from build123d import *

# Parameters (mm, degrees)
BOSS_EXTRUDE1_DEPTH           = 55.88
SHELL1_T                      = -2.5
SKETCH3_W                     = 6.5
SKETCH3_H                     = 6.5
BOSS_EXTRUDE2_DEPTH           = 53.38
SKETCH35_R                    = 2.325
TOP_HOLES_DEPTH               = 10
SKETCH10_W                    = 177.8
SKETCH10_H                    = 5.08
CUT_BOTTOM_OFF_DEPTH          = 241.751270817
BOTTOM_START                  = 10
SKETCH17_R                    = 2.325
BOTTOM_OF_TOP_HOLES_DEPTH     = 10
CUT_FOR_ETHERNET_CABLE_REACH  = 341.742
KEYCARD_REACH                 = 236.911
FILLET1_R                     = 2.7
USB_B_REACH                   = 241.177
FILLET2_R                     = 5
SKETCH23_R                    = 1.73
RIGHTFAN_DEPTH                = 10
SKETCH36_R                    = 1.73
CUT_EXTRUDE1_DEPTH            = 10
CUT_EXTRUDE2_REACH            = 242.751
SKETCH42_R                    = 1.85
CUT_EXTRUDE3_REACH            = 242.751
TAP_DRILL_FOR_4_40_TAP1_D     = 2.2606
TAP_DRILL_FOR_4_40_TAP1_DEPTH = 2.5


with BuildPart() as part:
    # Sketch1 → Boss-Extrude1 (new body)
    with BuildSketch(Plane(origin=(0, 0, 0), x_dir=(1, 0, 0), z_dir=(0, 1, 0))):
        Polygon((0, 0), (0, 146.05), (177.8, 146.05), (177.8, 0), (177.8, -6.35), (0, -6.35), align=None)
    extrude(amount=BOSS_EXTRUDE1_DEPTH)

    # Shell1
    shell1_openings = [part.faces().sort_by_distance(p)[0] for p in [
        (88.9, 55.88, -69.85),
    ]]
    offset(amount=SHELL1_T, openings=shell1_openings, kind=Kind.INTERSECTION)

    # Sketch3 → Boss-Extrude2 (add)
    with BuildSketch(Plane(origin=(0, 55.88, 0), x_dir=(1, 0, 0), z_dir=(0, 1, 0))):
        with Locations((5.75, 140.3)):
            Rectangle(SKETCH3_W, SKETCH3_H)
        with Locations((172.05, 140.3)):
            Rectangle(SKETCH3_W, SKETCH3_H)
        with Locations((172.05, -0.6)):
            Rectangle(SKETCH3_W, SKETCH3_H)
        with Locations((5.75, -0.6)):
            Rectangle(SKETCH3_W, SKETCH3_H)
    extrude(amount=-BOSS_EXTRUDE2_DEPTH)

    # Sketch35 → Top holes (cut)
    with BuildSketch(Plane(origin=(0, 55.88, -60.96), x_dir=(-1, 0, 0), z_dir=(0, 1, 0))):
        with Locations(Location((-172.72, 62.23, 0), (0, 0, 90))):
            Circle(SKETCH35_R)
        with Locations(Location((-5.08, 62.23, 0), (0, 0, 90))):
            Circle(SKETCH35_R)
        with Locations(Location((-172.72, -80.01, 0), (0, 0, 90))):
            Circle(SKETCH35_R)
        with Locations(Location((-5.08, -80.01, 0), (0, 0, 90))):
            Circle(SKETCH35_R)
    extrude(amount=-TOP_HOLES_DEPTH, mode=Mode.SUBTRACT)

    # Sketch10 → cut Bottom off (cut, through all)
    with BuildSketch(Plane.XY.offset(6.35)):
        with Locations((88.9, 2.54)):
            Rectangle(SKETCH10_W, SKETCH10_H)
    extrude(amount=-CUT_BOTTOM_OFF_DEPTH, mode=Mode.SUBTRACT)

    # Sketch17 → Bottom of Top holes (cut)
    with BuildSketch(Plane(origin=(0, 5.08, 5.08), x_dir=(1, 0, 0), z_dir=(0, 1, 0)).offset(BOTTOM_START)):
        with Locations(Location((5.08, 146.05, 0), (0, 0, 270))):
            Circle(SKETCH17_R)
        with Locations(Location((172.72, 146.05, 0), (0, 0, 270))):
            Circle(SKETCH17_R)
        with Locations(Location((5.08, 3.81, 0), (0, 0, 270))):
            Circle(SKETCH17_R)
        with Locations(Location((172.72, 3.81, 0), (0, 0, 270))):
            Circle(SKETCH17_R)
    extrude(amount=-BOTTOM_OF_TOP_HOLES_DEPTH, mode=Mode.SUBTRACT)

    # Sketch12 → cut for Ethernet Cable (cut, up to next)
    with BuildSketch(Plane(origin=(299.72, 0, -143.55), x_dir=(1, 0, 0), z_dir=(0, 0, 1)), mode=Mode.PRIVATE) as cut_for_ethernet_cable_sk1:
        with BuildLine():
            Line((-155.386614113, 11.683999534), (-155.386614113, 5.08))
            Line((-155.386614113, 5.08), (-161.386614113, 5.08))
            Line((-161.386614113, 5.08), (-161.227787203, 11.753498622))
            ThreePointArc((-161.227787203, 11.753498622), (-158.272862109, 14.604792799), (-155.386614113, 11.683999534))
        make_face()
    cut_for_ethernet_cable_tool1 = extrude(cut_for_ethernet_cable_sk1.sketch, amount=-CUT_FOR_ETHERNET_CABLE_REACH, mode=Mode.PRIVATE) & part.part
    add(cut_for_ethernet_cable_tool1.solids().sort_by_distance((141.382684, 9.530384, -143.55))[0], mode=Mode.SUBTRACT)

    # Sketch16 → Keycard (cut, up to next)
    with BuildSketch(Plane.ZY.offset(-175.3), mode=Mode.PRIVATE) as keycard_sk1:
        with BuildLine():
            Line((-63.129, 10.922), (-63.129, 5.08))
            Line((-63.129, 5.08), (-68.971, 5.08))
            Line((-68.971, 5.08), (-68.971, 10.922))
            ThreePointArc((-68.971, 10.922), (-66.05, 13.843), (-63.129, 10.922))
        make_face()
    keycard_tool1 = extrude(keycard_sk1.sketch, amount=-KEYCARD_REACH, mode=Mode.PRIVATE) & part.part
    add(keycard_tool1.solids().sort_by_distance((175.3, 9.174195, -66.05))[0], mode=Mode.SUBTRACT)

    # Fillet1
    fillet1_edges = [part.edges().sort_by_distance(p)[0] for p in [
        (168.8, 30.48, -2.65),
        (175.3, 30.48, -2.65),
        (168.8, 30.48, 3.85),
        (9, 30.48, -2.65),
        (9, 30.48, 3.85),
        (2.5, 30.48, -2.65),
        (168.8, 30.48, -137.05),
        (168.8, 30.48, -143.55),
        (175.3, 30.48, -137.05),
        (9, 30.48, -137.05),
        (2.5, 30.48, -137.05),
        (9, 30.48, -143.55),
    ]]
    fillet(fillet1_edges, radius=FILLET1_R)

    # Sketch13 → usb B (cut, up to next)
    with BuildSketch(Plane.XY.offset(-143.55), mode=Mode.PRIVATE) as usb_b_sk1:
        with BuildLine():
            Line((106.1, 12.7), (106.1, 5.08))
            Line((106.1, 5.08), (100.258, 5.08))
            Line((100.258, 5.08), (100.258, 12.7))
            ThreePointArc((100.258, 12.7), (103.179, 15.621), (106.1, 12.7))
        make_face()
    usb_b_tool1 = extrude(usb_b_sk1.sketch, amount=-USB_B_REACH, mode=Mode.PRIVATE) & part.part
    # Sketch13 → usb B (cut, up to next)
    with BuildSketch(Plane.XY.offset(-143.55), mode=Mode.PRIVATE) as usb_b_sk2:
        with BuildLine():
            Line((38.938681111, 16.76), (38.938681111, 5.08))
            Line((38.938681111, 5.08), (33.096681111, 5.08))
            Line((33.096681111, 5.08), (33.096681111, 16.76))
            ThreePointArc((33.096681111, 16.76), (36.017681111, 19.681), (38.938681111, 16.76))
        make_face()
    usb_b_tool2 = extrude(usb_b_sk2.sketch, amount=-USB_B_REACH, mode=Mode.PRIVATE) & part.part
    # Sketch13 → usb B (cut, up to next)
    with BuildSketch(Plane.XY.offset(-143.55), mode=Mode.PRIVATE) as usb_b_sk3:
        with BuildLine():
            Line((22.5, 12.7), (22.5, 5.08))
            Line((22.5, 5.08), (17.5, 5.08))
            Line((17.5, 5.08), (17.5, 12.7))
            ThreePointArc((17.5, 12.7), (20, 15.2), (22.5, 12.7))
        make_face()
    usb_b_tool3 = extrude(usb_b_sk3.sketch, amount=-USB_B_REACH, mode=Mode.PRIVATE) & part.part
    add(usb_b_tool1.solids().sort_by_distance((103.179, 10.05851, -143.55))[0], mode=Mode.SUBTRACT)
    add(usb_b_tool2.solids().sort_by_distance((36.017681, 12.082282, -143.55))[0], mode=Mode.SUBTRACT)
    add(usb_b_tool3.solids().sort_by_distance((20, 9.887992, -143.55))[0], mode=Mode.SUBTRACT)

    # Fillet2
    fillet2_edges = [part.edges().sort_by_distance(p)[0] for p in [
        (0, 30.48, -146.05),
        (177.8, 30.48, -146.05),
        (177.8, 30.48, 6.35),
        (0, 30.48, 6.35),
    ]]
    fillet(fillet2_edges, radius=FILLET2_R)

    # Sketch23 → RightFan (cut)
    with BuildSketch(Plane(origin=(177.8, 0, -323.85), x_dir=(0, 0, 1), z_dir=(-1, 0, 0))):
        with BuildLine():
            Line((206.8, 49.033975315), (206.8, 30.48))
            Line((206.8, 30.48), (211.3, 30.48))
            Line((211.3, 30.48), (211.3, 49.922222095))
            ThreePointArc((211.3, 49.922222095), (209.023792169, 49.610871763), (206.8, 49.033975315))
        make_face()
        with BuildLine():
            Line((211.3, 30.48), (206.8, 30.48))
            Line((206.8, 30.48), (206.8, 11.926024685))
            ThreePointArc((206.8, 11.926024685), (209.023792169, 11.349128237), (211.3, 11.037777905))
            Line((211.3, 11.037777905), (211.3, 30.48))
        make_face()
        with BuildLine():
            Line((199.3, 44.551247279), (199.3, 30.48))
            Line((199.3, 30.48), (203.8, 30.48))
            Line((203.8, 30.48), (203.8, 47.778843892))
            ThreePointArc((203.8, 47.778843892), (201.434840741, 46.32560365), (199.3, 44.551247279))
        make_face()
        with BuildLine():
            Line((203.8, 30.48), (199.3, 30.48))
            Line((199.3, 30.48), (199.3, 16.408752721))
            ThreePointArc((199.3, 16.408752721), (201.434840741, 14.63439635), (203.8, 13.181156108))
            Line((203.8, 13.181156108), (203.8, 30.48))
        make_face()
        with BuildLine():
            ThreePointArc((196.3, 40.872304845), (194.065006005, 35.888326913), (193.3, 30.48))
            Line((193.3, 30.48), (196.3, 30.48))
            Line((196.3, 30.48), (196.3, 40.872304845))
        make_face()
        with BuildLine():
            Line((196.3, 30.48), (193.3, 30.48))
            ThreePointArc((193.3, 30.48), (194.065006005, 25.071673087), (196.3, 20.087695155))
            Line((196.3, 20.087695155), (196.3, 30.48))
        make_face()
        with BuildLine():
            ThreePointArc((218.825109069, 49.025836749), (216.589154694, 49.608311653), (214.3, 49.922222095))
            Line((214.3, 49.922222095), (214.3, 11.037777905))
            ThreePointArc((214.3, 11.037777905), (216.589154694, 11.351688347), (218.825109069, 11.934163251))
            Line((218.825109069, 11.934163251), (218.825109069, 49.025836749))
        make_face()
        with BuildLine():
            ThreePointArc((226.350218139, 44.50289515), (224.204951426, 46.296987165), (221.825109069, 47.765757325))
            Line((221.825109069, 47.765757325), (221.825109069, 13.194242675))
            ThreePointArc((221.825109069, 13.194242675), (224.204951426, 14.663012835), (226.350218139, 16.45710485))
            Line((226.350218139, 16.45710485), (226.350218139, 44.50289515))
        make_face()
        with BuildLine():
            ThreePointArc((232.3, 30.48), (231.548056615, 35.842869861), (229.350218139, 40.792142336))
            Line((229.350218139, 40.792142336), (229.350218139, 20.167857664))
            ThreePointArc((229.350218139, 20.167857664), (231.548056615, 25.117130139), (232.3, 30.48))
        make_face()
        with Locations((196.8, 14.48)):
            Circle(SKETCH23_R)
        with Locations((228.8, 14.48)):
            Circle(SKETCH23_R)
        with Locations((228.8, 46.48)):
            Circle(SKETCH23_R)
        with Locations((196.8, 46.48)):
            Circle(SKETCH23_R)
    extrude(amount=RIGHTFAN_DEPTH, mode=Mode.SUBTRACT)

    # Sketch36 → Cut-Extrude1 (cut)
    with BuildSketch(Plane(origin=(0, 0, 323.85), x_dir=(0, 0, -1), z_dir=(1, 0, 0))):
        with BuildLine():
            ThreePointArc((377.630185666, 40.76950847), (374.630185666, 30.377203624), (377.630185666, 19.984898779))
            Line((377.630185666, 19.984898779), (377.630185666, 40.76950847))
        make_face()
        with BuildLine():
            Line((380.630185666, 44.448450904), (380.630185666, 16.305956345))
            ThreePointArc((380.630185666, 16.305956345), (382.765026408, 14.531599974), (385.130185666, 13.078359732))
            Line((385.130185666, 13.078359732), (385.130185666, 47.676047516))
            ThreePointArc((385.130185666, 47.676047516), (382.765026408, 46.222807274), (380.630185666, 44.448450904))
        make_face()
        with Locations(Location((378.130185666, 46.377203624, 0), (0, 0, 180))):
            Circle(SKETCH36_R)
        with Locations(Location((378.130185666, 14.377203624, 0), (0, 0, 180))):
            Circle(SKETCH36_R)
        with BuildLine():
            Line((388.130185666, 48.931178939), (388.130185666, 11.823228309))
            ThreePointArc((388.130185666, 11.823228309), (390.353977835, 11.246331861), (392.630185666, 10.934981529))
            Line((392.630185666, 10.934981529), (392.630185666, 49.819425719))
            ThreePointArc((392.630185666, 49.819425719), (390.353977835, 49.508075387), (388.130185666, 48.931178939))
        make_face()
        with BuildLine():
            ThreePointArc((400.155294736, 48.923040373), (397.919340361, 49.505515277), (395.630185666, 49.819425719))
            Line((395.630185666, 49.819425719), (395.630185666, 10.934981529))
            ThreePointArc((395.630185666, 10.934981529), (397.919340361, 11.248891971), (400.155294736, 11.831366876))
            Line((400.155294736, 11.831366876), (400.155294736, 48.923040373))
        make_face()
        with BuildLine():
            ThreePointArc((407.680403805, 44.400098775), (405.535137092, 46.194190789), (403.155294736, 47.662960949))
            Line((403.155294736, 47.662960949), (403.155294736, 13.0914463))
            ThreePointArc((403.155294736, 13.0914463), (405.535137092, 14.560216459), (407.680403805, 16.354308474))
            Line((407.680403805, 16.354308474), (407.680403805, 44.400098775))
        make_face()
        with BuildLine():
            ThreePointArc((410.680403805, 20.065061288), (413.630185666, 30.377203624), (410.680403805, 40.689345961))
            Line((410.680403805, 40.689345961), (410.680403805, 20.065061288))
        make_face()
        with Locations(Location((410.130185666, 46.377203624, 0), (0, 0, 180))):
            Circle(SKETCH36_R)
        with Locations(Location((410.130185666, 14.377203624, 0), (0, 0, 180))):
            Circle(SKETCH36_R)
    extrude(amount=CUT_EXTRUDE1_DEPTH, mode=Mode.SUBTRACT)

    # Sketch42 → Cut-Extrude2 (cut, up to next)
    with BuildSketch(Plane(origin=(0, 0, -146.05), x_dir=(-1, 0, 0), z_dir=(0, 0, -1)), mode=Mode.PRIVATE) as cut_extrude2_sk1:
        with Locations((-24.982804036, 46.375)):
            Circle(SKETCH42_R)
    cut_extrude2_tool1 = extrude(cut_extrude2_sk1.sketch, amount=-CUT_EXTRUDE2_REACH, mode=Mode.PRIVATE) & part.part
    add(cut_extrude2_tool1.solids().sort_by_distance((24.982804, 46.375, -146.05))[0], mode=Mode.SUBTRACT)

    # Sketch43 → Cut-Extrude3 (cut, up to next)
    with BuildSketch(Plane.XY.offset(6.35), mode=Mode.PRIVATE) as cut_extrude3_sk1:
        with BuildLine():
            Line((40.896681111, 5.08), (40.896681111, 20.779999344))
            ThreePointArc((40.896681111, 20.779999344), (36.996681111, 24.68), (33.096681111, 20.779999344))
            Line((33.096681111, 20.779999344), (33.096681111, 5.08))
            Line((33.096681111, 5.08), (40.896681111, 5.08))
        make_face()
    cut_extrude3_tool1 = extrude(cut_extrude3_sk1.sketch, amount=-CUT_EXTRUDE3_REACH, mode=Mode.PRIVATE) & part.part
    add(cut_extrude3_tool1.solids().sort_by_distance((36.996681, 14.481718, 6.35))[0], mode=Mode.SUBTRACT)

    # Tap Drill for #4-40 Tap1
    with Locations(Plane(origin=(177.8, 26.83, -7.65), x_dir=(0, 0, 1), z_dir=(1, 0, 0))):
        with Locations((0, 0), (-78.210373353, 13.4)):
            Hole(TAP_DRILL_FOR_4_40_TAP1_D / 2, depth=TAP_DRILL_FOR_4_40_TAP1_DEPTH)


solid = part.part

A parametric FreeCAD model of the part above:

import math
import FreeCAD as App
import Part
import Sketcher
from FreeCAD import Vector


def edges_at(feature, points):
    """Names of the edges that pass closest to the given points."""
    edges = feature.Shape.Edges
    near = lambda p: min(range(len(edges)), key=lambda i: edges[i].distToShape(Part.Vertex(*p))[0])
    return sorted({f"Edge{near(p) + 1}" for p in points})


def faces_at(feature, points):
    """Names of the faces that lie closest to the given points."""
    faces = feature.Shape.Faces
    near = lambda p: min(range(len(faces)), key=lambda i: faces[i].distToShape(Part.Vertex(*p))[0])
    return sorted({f"Face{near(p) + 1}" for p in points})

doc = App.newDocument("Part")
body = doc.addObject("PartDesign::Body", "Body")

sketch1 = doc.addObject("Sketcher::SketchObject", "Sketch")
body.addObject(sketch1)
sketch1.AttachmentSupport = (doc.XZ_Plane, [""])
sketch1.MapMode = "FlatFace"
sketch1.addGeometry(Part.LineSegment(Vector(0, -146, 0), Vector(0, 6, 0)), False)
sketch1.addGeometry(Part.LineSegment(Vector(0, 6, 0), Vector(178, 6, 0)), False)
sketch1.addGeometry(Part.LineSegment(Vector(178, 6, 0), Vector(178, -146, 0)), False)
sketch1.addGeometry(Part.LineSegment(Vector(178, -146, 0), Vector(0, -146, 0)), False)
sketch1.addConstraint(Sketcher.Constraint("Coincident", 0, 2, 1, 1))
sketch1.addConstraint(Sketcher.Constraint("Coincident", 1, 2, 2, 1))
sketch1.addConstraint(Sketcher.Constraint("Coincident", 2, 2, 3, 1))
sketch1.addConstraint(Sketcher.Constraint("Coincident", 3, 2, 0, 1))
sketch1.addConstraint(Sketcher.Constraint("Vertical", 0))
sketch1.addConstraint(Sketcher.Constraint("Horizontal", 1))
sketch1.addConstraint(Sketcher.Constraint("Vertical", 2))
sketch1.addConstraint(Sketcher.Constraint("Horizontal", 3))
sketch1.addConstraint(Sketcher.Constraint("PointOnObject", 0, 2, -2))
sketch1.addConstraint(Sketcher.Constraint("DistanceX", 1, 1, 1, 2, 177.8))
sketch1.addConstraint(Sketcher.Constraint("DistanceY", 0, 1, 0, 2, 152.4))
sketch1.addConstraint(Sketcher.Constraint("DistanceY", -1, 1, 0, 2, 6.35))
pad1 = doc.addObject("PartDesign::Pad", "Pad")
body.addObject(pad1)
pad1.Profile = sketch1
pad1.Length = 55.88
pad1.Reversed = True
doc.recompute()

thickness = doc.addObject("PartDesign::Thickness", "Thickness")
body.addObject(thickness)
thickness.Base = (pad1, faces_at(pad1, [(88.9, 55.88, -69.85)]))
thickness.Value = 2.5
thickness.Reversed = True
thickness.Join = "Intersection"

sketch2 = doc.addObject("Sketcher::SketchObject", "Sketch001")
body.addObject(sketch2)
sketch2.AttachmentSupport = (doc.XZ_Plane, [""])
sketch2.MapMode = "FlatFace"
sketch2.AttachmentOffset = App.Placement(Vector(0, 0, -55.88), App.Rotation())
sketch2.addGeometry(Part.LineSegment(Vector(2, -144, 0), Vector(2, -137, 0)), False)
sketch2.addGeometry(Part.LineSegment(Vector(2, -137, 0), Vector(9, -137, 0)), False)
sketch2.addGeometry(Part.LineSegment(Vector(9, -137, 0), Vector(9, -144, 0)), False)
sketch2.addGeometry(Part.LineSegment(Vector(9, -144, 0), Vector(2, -144, 0)), False)
sketch2.addGeometry(Part.LineSegment(Vector(169, -144, 0), Vector(169, -137, 0)), False)
sketch2.addGeometry(Part.LineSegment(Vector(169, -137, 0), Vector(175, -137, 0)), False)
sketch2.addGeometry(Part.LineSegment(Vector(175, -137, 0), Vector(175, -144, 0)), False)
sketch2.addGeometry(Part.LineSegment(Vector(175, -144, 0), Vector(169, -144, 0)), False)
sketch2.addGeometry(Part.LineSegment(Vector(169, -3, 0), Vector(169, 4, 0)), False)
sketch2.addGeometry(Part.LineSegment(Vector(169, 4, 0), Vector(175, 4, 0)), False)
sketch2.addGeometry(Part.LineSegment(Vector(175, 4, 0), Vector(175, -3, 0)), False)
sketch2.addGeometry(Part.LineSegment(Vector(175, -3, 0), Vector(169, -3, 0)), False)
sketch2.addGeometry(Part.LineSegment(Vector(2, -3, 0), Vector(2, 4, 0)), False)
sketch2.addGeometry(Part.LineSegment(Vector(2, 4, 0), Vector(9, 4, 0)), False)
sketch2.addGeometry(Part.LineSegment(Vector(9, 4, 0), Vector(9, -3, 0)), False)
sketch2.addGeometry(Part.LineSegment(Vector(9, -3, 0), Vector(2, -3, 0)), False)
sketch2.addConstraint(Sketcher.Constraint("Coincident", 0, 2, 1, 1))
sketch2.addConstraint(Sketcher.Constraint("Coincident", 1, 2, 2, 1))
sketch2.addConstraint(Sketcher.Constraint("Coincident", 2, 2, 3, 1))
sketch2.addConstraint(Sketcher.Constraint("Coincident", 3, 2, 0, 1))
sketch2.addConstraint(Sketcher.Constraint("Coincident", 4, 2, 5, 1))
sketch2.addConstraint(Sketcher.Constraint("Coincident", 5, 2, 6, 1))
sketch2.addConstraint(Sketcher.Constraint("Coincident", 6, 2, 7, 1))
sketch2.addConstraint(Sketcher.Constraint("Coincident", 7, 2, 4, 1))
sketch2.addConstraint(Sketcher.Constraint("Coincident", 8, 2, 9, 1))
sketch2.addConstraint(Sketcher.Constraint("Coincident", 9, 2, 10, 1))
sketch2.addConstraint(Sketcher.Constraint("Coincident", 10, 2, 11, 1))
sketch2.addConstraint(Sketcher.Constraint("Coincident", 11, 2, 8, 1))
sketch2.addConstraint(Sketcher.Constraint("Coincident", 12, 2, 13, 1))
sketch2.addConstraint(Sketcher.Constraint("Coincident", 13, 2, 14, 1))
sketch2.addConstraint(Sketcher.Constraint("Coincident", 14, 2, 15, 1))
sketch2.addConstraint(Sketcher.Constraint("Coincident", 15, 2, 12, 1))
sketch2.addConstraint(Sketcher.Constraint("Vertical", 0))
sketch2.addConstraint(Sketcher.Constraint("Horizontal", 1))
sketch2.addConstraint(Sketcher.Constraint("Vertical", 2))
sketch2.addConstraint(Sketcher.Constraint("Horizontal", 3))
sketch2.addConstraint(Sketcher.Constraint("Vertical", 4))
sketch2.addConstraint(Sketcher.Constraint("Horizontal", 5))
sketch2.addConstraint(Sketcher.Constraint("Vertical", 6))
sketch2.addConstraint(Sketcher.Constraint("Horizontal", 7))
sketch2.addConstraint(Sketcher.Constraint("Vertical", 8))
sketch2.addConstraint(Sketcher.Constraint("Horizontal", 9))
sketch2.addConstraint(Sketcher.Constraint("Vertical", 10))
sketch2.addConstraint(Sketcher.Constraint("Horizontal", 11))
sketch2.addConstraint(Sketcher.Constraint("Vertical", 12))
sketch2.addConstraint(Sketcher.Constraint("Horizontal", 13))
sketch2.addConstraint(Sketcher.Constraint("Vertical", 14))
sketch2.addConstraint(Sketcher.Constraint("Horizontal", 15))
sketch2.addConstraint(Sketcher.Constraint("Horizontal", 1, 2, 4, 2))
sketch2.addConstraint(Sketcher.Constraint("Horizontal", 3, 2, 6, 2))
sketch2.addConstraint(Sketcher.Constraint("Horizontal", 9, 2, 12, 2))
sketch2.addConstraint(Sketcher.Constraint("Horizontal", 11, 2, 14, 2))
sketch2.addConstraint(Sketcher.Constraint("Vertical", 7, 2, 8, 2))
sketch2.addConstraint(Sketcher.Constraint("Vertical", 6, 2, 9, 2))
sketch2.addConstraint(Sketcher.Constraint("Vertical", 3, 2, 12, 2))
sketch2.addConstraint(Sketcher.Constraint("Vertical", 2, 2, 13, 2))
sketch2.addConstraint(Sketcher.Constraint("Equal", 3, 5))
sketch2.addConstraint(Sketcher.Constraint("Equal", 15, 0))
sketch2.addConstraint(Sketcher.Constraint("Equal", 6, 8))
sketch2.addConstraint(Sketcher.Constraint("DistanceX", 1, 1, 1, 2, 6.5))
sketch2.addConstraint(Sketcher.Constraint("DistanceX", -1, 1, 1, 2, 9.0))
sketch2.addConstraint(Sketcher.Constraint("DistanceX", -1, 1, 4, 2, 168.8))
sketch2.addConstraint(Sketcher.Constraint("DistanceY", 4, 2, 8, 2, 140.9))
sketch2.addConstraint(Sketcher.Constraint("DistanceY", 0, 2, -1, 1, 137.05))
pad2 = doc.addObject("PartDesign::Pad", "Pad001")
body.addObject(pad2)
pad2.Profile = sketch2
pad2.Length = 53.38

sketch3 = doc.addObject("Sketcher::SketchObject", "Sketch002")
body.addObject(sketch3)
sketch3.AttachmentSupport = (doc.XZ_Plane, [""])
sketch3.MapMode = "FlatFace"
sketch3.AttachmentOffset = App.Placement(Vector(0, 0, -55.88), App.Rotation())
sketch3.addGeometry(Part.Circle(Vector(172.7, 1.3, 0), Vector(0, 0, 1), 2.3), False)
sketch3.addGeometry(Part.Circle(Vector(5.1, 1.3, 0), Vector(0, 0, 1), 2.3), False)
sketch3.addGeometry(Part.Circle(Vector(172.7, -141, 0), Vector(0, 0, 1), 2.3), False)
sketch3.addGeometry(Part.Circle(Vector(5.1, -141, 0), Vector(0, 0, 1), 2.3), False)
sketch3.addConstraint(Sketcher.Constraint("Equal", 0, 1))
sketch3.addConstraint(Sketcher.Constraint("Equal", 1, 2))
sketch3.addConstraint(Sketcher.Constraint("Equal", 2, 3))
sketch3.addConstraint(Sketcher.Constraint("Horizontal", 0, 3, 1, 3))
sketch3.addConstraint(Sketcher.Constraint("Horizontal", 2, 3, 3, 3))
sketch3.addConstraint(Sketcher.Constraint("Vertical", 0, 3, 2, 3))
sketch3.addConstraint(Sketcher.Constraint("Vertical", 1, 3, 3, 3))
sketch3.addConstraint(Sketcher.Constraint("Diameter", 0, 4.65))
sketch3.addConstraint(Sketcher.Constraint("DistanceX", -1, 1, 0, 3, 172.72))
sketch3.addConstraint(Sketcher.Constraint("DistanceY", -1, 1, 0, 3, 1.27))
sketch3.addConstraint(Sketcher.Constraint("DistanceX", -1, 1, 1, 3, 5.08))
sketch3.addConstraint(Sketcher.Constraint("DistanceY", 2, 3, -1, 1, 140.97))
pocket1 = doc.addObject("PartDesign::Pocket", "Pocket")
body.addObject(pocket1)
pocket1.Profile = sketch3
pocket1.Length = 10
pocket1.Reversed = True

sketch4 = doc.addObject("Sketcher::SketchObject", "Sketch003")
body.addObject(sketch4)
sketch4.AttachmentSupport = (doc.XY_Plane, [""])
sketch4.MapMode = "FlatFace"
sketch4.AttachmentOffset = App.Placement(Vector(0, 0, 6.35), App.Rotation())
sketch4.addGeometry(Part.LineSegment(Vector(0, 5, 0), Vector(0, 0, 0)), False)
sketch4.addGeometry(Part.LineSegment(Vector(0, 0, 0), Vector(178, 0, 0)), False)
sketch4.addGeometry(Part.LineSegment(Vector(178, 0, 0), Vector(178, 5, 0)), False)
sketch4.addGeometry(Part.LineSegment(Vector(178, 5, 0), Vector(0, 5, 0)), False)
sketch4.addConstraint(Sketcher.Constraint("Coincident", 0, 2, 1, 1))
sketch4.addConstraint(Sketcher.Constraint("Coincident", 1, 2, 2, 1))
sketch4.addConstraint(Sketcher.Constraint("Coincident", 2, 2, 3, 1))
sketch4.addConstraint(Sketcher.Constraint("Coincident", 3, 2, 0, 1))
sketch4.addConstraint(Sketcher.Constraint("Vertical", 0))
sketch4.addConstraint(Sketcher.Constraint("Horizontal", 1))
sketch4.addConstraint(Sketcher.Constraint("Vertical", 2))
sketch4.addConstraint(Sketcher.Constraint("Horizontal", 3))
sketch4.addConstraint(Sketcher.Constraint("Coincident", 0, 2, -1, 1))
sketch4.addConstraint(Sketcher.Constraint("DistanceX", 1, 1, 1, 2, 177.8))
sketch4.addConstraint(Sketcher.Constraint("DistanceY", 0, 2, 0, 1, 5.08))
pocket2 = doc.addObject("PartDesign::Pocket", "Pocket001")
body.addObject(pocket2)
pocket2.Profile = sketch4
pocket2.Type = "ThroughAll"

sketch5 = doc.addObject("Sketcher::SketchObject", "Sketch004")
body.addObject(sketch5)
sketch5.AttachmentSupport = (doc.XZ_Plane, [""])
sketch5.MapMode = "FlatFace"
sketch5.AttachmentOffset = App.Placement(Vector(0, 0, -15.08), App.Rotation())
sketch5.addGeometry(Part.Circle(Vector(5.1, -141, 0), Vector(0, 0, 1), 2.3), False)
sketch5.addGeometry(Part.Circle(Vector(172.7, -141, 0), Vector(0, 0, 1), 2.3), False)
sketch5.addGeometry(Part.Circle(Vector(5.1, 1.3, 0), Vector(0, 0, 1), 2.3), False)
sketch5.addGeometry(Part.Circle(Vector(172.7, 1.3, 0), Vector(0, 0, 1), 2.3), False)
sketch5.addConstraint(Sketcher.Constraint("Equal", 0, 1))
sketch5.addConstraint(Sketcher.Constraint("Equal", 1, 2))
sketch5.addConstraint(Sketcher.Constraint("Equal", 2, 3))
sketch5.addConstraint(Sketcher.Constraint("Horizontal", 0, 3, 1, 3))
sketch5.addConstraint(Sketcher.Constraint("Horizontal", 2, 3, 3, 3))
sketch5.addConstraint(Sketcher.Constraint("Vertical", 0, 3, 2, 3))
sketch5.addConstraint(Sketcher.Constraint("Vertical", 1, 3, 3, 3))
sketch5.addConstraint(Sketcher.Constraint("Diameter", 0, 4.65))
sketch5.addConstraint(Sketcher.Constraint("DistanceX", -1, 1, 0, 3, 5.08))
sketch5.addConstraint(Sketcher.Constraint("DistanceY", 0, 3, -1, 1, 140.97))
sketch5.addConstraint(Sketcher.Constraint("DistanceX", -1, 1, 1, 3, 172.72))
sketch5.addConstraint(Sketcher.Constraint("DistanceY", -1, 1, 2, 3, 1.27))
pocket3 = doc.addObject("PartDesign::Pocket", "Pocket002")
body.addObject(pocket3)
pocket3.Profile = sketch5
pocket3.Length = 10
pocket3.Reversed = True

sketch6 = doc.addObject("Sketcher::SketchObject", "Sketch005")
body.addObject(sketch6)
sketch6.AttachmentSupport = (doc.XY_Plane, [""])
sketch6.MapMode = "FlatFace"
sketch6.AttachmentOffset = App.Placement(Vector(0, 0, -143.55), App.Rotation())
sketch6.addGeometry(Part.LineSegment(Vector(144.3, 5.1, 0), Vector(144.3, 11.7, 0)), False)
sketch6.addGeometry(Part.ArcOfCircle(Part.Circle(Vector(141.4, 11.7, 0), Vector(0, 0, 1), 2.9), math.radians(0), math.radians(179)), False)
sketch6.addGeometry(Part.LineSegment(Vector(138.5, 11.8, 0), Vector(138.3, 5.1, 0)), False)
sketch6.addGeometry(Part.LineSegment(Vector(138.3, 5.1, 0), Vector(144.3, 5.1, 0)), False)
sketch6.addConstraint(Sketcher.Constraint("Tangent", 0, 2, 1, 1))
sketch6.addConstraint(Sketcher.Constraint("Tangent", 1, 2, 2, 1))
sketch6.addConstraint(Sketcher.Constraint("Coincident", 2, 2, 3, 1))
sketch6.addConstraint(Sketcher.Constraint("Coincident", 3, 2, 0, 1))
sketch6.addConstraint(Sketcher.Constraint("Vertical", 0))
sketch6.addConstraint(Sketcher.Constraint("Horizontal", 3))
sketch6.addConstraint(Sketcher.Constraint("DistanceX", 3, 1, 3, 2, 6.0))
sketch6.addConstraint(Sketcher.Constraint("Radius", 1, 2.921))
sketch6.addConstraint(Sketcher.Constraint("DistanceY", 0, 1, 0, 2, 6.604))
sketch6.addConstraint(Sketcher.Constraint("DistanceY", -1, 1, 2, 2, 5.08))
sketch6.addConstraint(Sketcher.Constraint("DistanceX", -1, 1, 1, 3, 141.412386))
pocket4 = doc.addObject("PartDesign::Pocket", "Pocket003")
body.addObject(pocket4)
pocket4.Profile = sketch6
pocket4.Type = "UpToFirst"

sketch7 = doc.addObject("Sketcher::SketchObject", "Sketch006")
body.addObject(sketch7)
sketch7.AttachmentSupport = (doc.YZ_Plane, [""])
sketch7.MapMode = "FlatFace"
sketch7.AttachmentOffset = App.Placement(Vector(0, 0, 175.3), App.Rotation())
sketch7.addGeometry(Part.LineSegment(Vector(5.1, -63.1, 0), Vector(10.9, -63.1, 0)), False)
sketch7.addGeometry(Part.ArcOfCircle(Part.Circle(Vector(10.9, -66, 0), Vector(0, 0, 1), 2.9), math.radians(-90), math.radians(90)), False)
sketch7.addGeometry(Part.LineSegment(Vector(10.9, -69, 0), Vector(5.1, -69, 0)), False)
sketch7.addGeometry(Part.LineSegment(Vector(5.1, -69, 0), Vector(5.1, -63.1, 0)), False)
sketch7.addConstraint(Sketcher.Constraint("Tangent", 0, 2, 1, 2))
sketch7.addConstraint(Sketcher.Constraint("Tangent", 1, 1, 2, 1))
sketch7.addConstraint(Sketcher.Constraint("Coincident", 2, 2, 3, 1))
sketch7.addConstraint(Sketcher.Constraint("Coincident", 3, 2, 0, 1))
sketch7.addConstraint(Sketcher.Constraint("Horizontal", 0))
sketch7.addConstraint(Sketcher.Constraint("Horizontal", 2))
sketch7.addConstraint(Sketcher.Constraint("Vertical", 3))
sketch7.addConstraint(Sketcher.Constraint("Equal", 2, 3))
sketch7.addConstraint(Sketcher.Constraint("Radius", 1, 2.921))
sketch7.addConstraint(Sketcher.Constraint("DistanceY", 1, 3, -1, 1, 66.05))
sketch7.addConstraint(Sketcher.Constraint("DistanceX", -1, 1, 2, 2, 5.08))
pocket5 = doc.addObject("PartDesign::Pocket", "Pocket004")
body.addObject(pocket5)
pocket5.Profile = sketch7
pocket5.Type = "UpToFirst"
pocket5.Reversed = True
doc.recompute()

fillet = doc.addObject("PartDesign::Fillet", "Fillet")
body.addObject(fillet)
fillet.Base = (pocket5, edges_at(pocket5, [
    (168.8, 30.48, -2.65),
    (175.3, 30.48, -2.65),
    (168.8, 30.48, 3.85),
    (9, 30.48, -2.65),
    (9, 30.48, 3.85),
    (2.5, 30.48, -2.65),
    (168.8, 30.48, -137.05),
    (168.8, 30.48, -143.55),
    (175.3, 30.48, -137.05),
    (9, 30.48, -137.05),
    (2.5, 30.48, -137.05),
    (9, 30.48, -143.55),
]))
fillet.Radius = 2.7

sketch8 = doc.addObject("Sketcher::SketchObject", "Sketch007")
body.addObject(sketch8)
sketch8.AttachmentSupport = (doc.XY_Plane, [""])
sketch8.MapMode = "FlatFace"
sketch8.AttachmentOffset = App.Placement(Vector(0, 0, -143.55), App.Rotation())
sketch8.addGeometry(Part.LineSegment(Vector(106.1, 5.1, 0), Vector(106.1, 12.7, 0)), False)
sketch8.addGeometry(Part.ArcOfCircle(Part.Circle(Vector(103.2, 12.7, 0), Vector(0, 0, 1), 2.9), math.radians(0), math.radians(180)), False)
sketch8.addGeometry(Part.LineSegment(Vector(100.3, 12.7, 0), Vector(100.3, 5.1, 0)), False)
sketch8.addGeometry(Part.LineSegment(Vector(100.3, 5.1, 0), Vector(106.1, 5.1, 0)), False)
sketch8.addConstraint(Sketcher.Constraint("Tangent", 0, 2, 1, 1))
sketch8.addConstraint(Sketcher.Constraint("Tangent", 1, 2, 2, 1))
sketch8.addConstraint(Sketcher.Constraint("Coincident", 2, 2, 3, 1))
sketch8.addConstraint(Sketcher.Constraint("Coincident", 3, 2, 0, 1))
sketch8.addConstraint(Sketcher.Constraint("Vertical", 0))
sketch8.addConstraint(Sketcher.Constraint("Vertical", 2))
sketch8.addConstraint(Sketcher.Constraint("Horizontal", 3))
sketch8.addConstraint(Sketcher.Constraint("Radius", 1, 2.921))
sketch8.addConstraint(Sketcher.Constraint("DistanceY", 0, 1, 0, 2, 7.62))
sketch8.addConstraint(Sketcher.Constraint("DistanceY", -1, 1, 1, 3, 12.7))
sketch8.addConstraint(Sketcher.Constraint("DistanceX", -1, 1, 0, 2, 106.1))
pocket6 = doc.addObject("PartDesign::Pocket", "Pocket005")
body.addObject(pocket6)
pocket6.Profile = sketch8
pocket6.Type = "UpToFirst"

sketch9 = doc.addObject("Sketcher::SketchObject", "Sketch008")
body.addObject(sketch9)
sketch9.AttachmentSupport = (doc.XY_Plane, [""])
sketch9.MapMode = "FlatFace"
sketch9.AttachmentOffset = App.Placement(Vector(0, 0, -143.55), App.Rotation())
sketch9.addGeometry(Part.LineSegment(Vector(38.9, 5.1, 0), Vector(38.9, 16.8, 0)), False)
sketch9.addGeometry(Part.ArcOfCircle(Part.Circle(Vector(36, 16.8, 0), Vector(0, 0, 1), 2.9), math.radians(0), math.radians(180)), False)
sketch9.addGeometry(Part.LineSegment(Vector(33.1, 16.8, 0), Vector(33.1, 5.1, 0)), False)
sketch9.addGeometry(Part.LineSegment(Vector(33.1, 5.1, 0), Vector(38.9, 5.1, 0)), False)
sketch9.addConstraint(Sketcher.Constraint("Tangent", 0, 2, 1, 1))
sketch9.addConstraint(Sketcher.Constraint("Tangent", 1, 2, 2, 1))
sketch9.addConstraint(Sketcher.Constraint("Coincident", 2, 2, 3, 1))
sketch9.addConstraint(Sketcher.Constraint("Coincident", 3, 2, 0, 1))
sketch9.addConstraint(Sketcher.Constraint("Vertical", 0))
sketch9.addConstraint(Sketcher.Constraint("Vertical", 2))
sketch9.addConstraint(Sketcher.Constraint("Horizontal", 3))
sketch9.addConstraint(Sketcher.Constraint("Radius", 1, 2.921))
sketch9.addConstraint(Sketcher.Constraint("DistanceY", 0, 1, 0, 2, 11.68))
sketch9.addConstraint(Sketcher.Constraint("DistanceY", -1, 1, 1, 3, 16.76))
sketch9.addConstraint(Sketcher.Constraint("DistanceX", -1, 1, 1, 3, 36.017681))
pocket7 = doc.addObject("PartDesign::Pocket", "Pocket006")
body.addObject(pocket7)
pocket7.Profile = sketch9
pocket7.Type = "UpToFirst"

sketch10 = doc.addObject("Sketcher::SketchObject", "Sketch009")
body.addObject(sketch10)
sketch10.AttachmentSupport = (doc.XY_Plane, [""])
sketch10.MapMode = "FlatFace"
sketch10.AttachmentOffset = App.Placement(Vector(0, 0, -143.55), App.Rotation())
sketch10.addGeometry(Part.LineSegment(Vector(22.5, 5.1, 0), Vector(22.5, 12.7, 0)), False)
sketch10.addGeometry(Part.ArcOfCircle(Part.Circle(Vector(20, 12.7, 0), Vector(0, 0, 1), 2.5), math.radians(0), math.radians(180)), False)
sketch10.addGeometry(Part.LineSegment(Vector(17.5, 12.7, 0), Vector(17.5, 5.1, 0)), False)
sketch10.addGeometry(Part.LineSegment(Vector(17.5, 5.1, 0), Vector(22.5, 5.1, 0)), False)
sketch10.addConstraint(Sketcher.Constraint("Tangent", 0, 2, 1, 1))
sketch10.addConstraint(Sketcher.Constraint("Tangent", 1, 2, 2, 1))
sketch10.addConstraint(Sketcher.Constraint("Coincident", 2, 2, 3, 1))
sketch10.addConstraint(Sketcher.Constraint("Coincident", 3, 2, 0, 1))
sketch10.addConstraint(Sketcher.Constraint("Vertical", 0))
sketch10.addConstraint(Sketcher.Constraint("Vertical", 2))
sketch10.addConstraint(Sketcher.Constraint("Horizontal", 3))
sketch10.addConstraint(Sketcher.Constraint("Radius", 1, 2.5))
sketch10.addConstraint(Sketcher.Constraint("DistanceX", -1, 1, 1, 3, 20.0))
sketch10.addConstraint(Sketcher.Constraint("DistanceY", 0, 1, 0, 2, 7.62))
sketch10.addConstraint(Sketcher.Constraint("DistanceY", -1, 1, 1, 3, 12.7))
pocket8 = doc.addObject("PartDesign::Pocket", "Pocket007")
body.addObject(pocket8)
pocket8.Profile = sketch10
pocket8.Type = "UpToFirst"
doc.recompute()

fillet2 = doc.addObject("PartDesign::Fillet", "Fillet001")
body.addObject(fillet2)
fillet2.Base = (pocket8, edges_at(pocket8, [
    (0, 30.48, -146.05),
    (177.8, 30.48, -146.05),
    (177.8, 30.48, 6.35),
    (0, 30.48, 6.35),
]))
fillet2.Radius = 5

sketch11 = doc.addObject("Sketcher::SketchObject", "Sketch010")
body.addObject(sketch11)
sketch11.AttachmentSupport = (doc.YZ_Plane, [""])
sketch11.MapMode = "FlatFace"
sketch11.AttachmentOffset = App.Placement(Vector(0, 0, 177.8), App.Rotation())
sketch11.addGeometry(Part.ArcOfCircle(Part.Circle(Vector(30.5, -111.1, 0), Vector(0, 0, 1), 19.5), math.radians(-17.92), math.radians(-4.41)), False)
sketch11.addGeometry(Part.LineSegment(Vector(49, -117, 0), Vector(11.9, -117, 0)), False)
sketch11.addGeometry(Part.ArcOfCircle(Part.Circle(Vector(30.5, -111.1, 0), Vector(0, 0, 1), 19.5), math.radians(-175.59), math.radians(-162.08)), False)
sketch11.addGeometry(Part.LineSegment(Vector(11, -112.5, 0), Vector(49.9, -112.5, 0)), False)
sketch11.addGeometry(Part.ArcOfCircle(Part.Circle(Vector(30.5, -111.1, 0), Vector(0, 0, 1), 19.5), math.radians(-43.81), math.radians(-27.49)), False)
sketch11.addGeometry(Part.LineSegment(Vector(44.6, -124.5, 0), Vector(16.4, -124.5, 0)), False)
sketch11.addGeometry(Part.ArcOfCircle(Part.Circle(Vector(30.5, -111.1, 0), Vector(0, 0, 1), 19.5), math.radians(-152.51), math.radians(-136.19)), False)
sketch11.addGeometry(Part.LineSegment(Vector(13.2, -120, 0), Vector(47.8, -120, 0)), False)
sketch11.addGeometry(Part.ArcOfCircle(Part.Circle(Vector(30.5, -111, 0), Vector(0, 0, 1), 19.5), math.radians(-90), math.radians(-58)), False)
sketch11.addGeometry(Part.ArcOfCircle(Part.Circle(Vector(30.5, -111, 0), Vector(0, 0, 1), 19.5), math.radians(-122), math.radians(-90)), False)
sketch11.addGeometry(Part.LineSegment(Vector(20.1, -127.5, 0), Vector(40.9, -127.5, 0)), False)
sketch11.addGeometry(Part.ArcOfCircle(Part.Circle(Vector(30.5, -111.1, 0), Vector(0, 0, 1), 19.5), math.radians(4.41), math.radians(18)), False)
sketch11.addGeometry(Part.LineSegment(Vector(49.9, -109.5, 0), Vector(11, -109.5, 0)), False)
sketch11.addGeometry(Part.ArcOfCircle(Part.Circle(Vector(30.5, -111.1, 0), Vector(0, 0, 1), 19.5), math.radians(162), math.radians(175.59)), False)
sketch11.addGeometry(Part.LineSegment(Vector(11.9, -105, 0), Vector(49, -105, 0)), False)
sketch11.addGeometry(Part.ArcOfCircle(Part.Circle(Vector(30.5, -111, 0), Vector(0, 0, 1), 19.5), math.radians(27.57), math.radians(44.02)), False)
sketch11.addGeometry(Part.LineSegment(Vector(47.8, -102, 0), Vector(13.2, -102, 0)), False)
sketch11.addGeometry(Part.ArcOfCircle(Part.Circle(Vector(30.5, -111, 0), Vector(0, 0, 1), 19.5), math.radians(135.98), math.radians(152.43)), False)
sketch11.addGeometry(Part.LineSegment(Vector(16.5, -97.5, 0), Vector(44.5, -97.5, 0)), False)
sketch11.addGeometry(Part.ArcOfCircle(Part.Circle(Vector(30.5, -111.1, 0), Vector(0, 0, 1), 19.5), math.radians(58), math.radians(90)), False)
sketch11.addGeometry(Part.LineSegment(Vector(40.8, -94.5, 0), Vector(20.2, -94.5, 0)), False)
sketch11.addGeometry(Part.ArcOfCircle(Part.Circle(Vector(30.5, -111.1, 0), Vector(0, 0, 1), 19.5), math.radians(90), math.radians(122)), False)
sketch11.addGeometry(Part.Circle(Vector(14.5, -127, 0), Vector(0, 0, 1), 1.7), False)
sketch11.addGeometry(Part.Circle(Vector(14.5, -95, 0), Vector(0, 0, 1), 1.7), False)
sketch11.addGeometry(Part.Circle(Vector(46.5, -95, 0), Vector(0, 0, 1), 1.7), False)
sketch11.addGeometry(Part.Circle(Vector(46.5, -127, 0), Vector(0, 0, 1), 1.7), False)
sketch11.addConstraint(Sketcher.Constraint("Coincident", 0, 1, 1, 1))
sketch11.addConstraint(Sketcher.Constraint("Coincident", 1, 2, 2, 2))
sketch11.addConstraint(Sketcher.Constraint("Coincident", 2, 1, 3, 1))
sketch11.addConstraint(Sketcher.Constraint("Coincident", 3, 2, 0, 2))
sketch11.addConstraint(Sketcher.Constraint("Coincident", 4, 1, 5, 1))
sketch11.addConstraint(Sketcher.Constraint("Coincident", 5, 2, 6, 2))
sketch11.addConstraint(Sketcher.Constraint("Coincident", 6, 1, 7, 1))
sketch11.addConstraint(Sketcher.Constraint("Coincident", 7, 2, 4, 2))
sketch11.addConstraint(Sketcher.Constraint("Tangent", 8, 1, 9, 2))
sketch11.addConstraint(Sketcher.Constraint("Coincident", 9, 1, 10, 1))
sketch11.addConstraint(Sketcher.Constraint("Coincident", 10, 2, 8, 2))
sketch11.addConstraint(Sketcher.Constraint("Coincident", 11, 1, 12, 1))
sketch11.addConstraint(Sketcher.Constraint("Coincident", 12, 2, 13, 2))
sketch11.addConstraint(Sketcher.Constraint("Coincident", 13, 1, 14, 1))
sketch11.addConstraint(Sketcher.Constraint("Coincident", 14, 2, 11, 2))
sketch11.addConstraint(Sketcher.Constraint("Coincident", 15, 1, 16, 1))
sketch11.addConstraint(Sketcher.Constraint("Coincident", 16, 2, 17, 2))
sketch11.addConstraint(Sketcher.Constraint("Coincident", 17, 1, 18, 1))
sketch11.addConstraint(Sketcher.Constraint("Coincident", 18, 2, 15, 2))
sketch11.addConstraint(Sketcher.Constraint("Coincident", 19, 1, 20, 1))
sketch11.addConstraint(Sketcher.Constraint("Coincident", 20, 2, 21, 2))
sketch11.addConstraint(Sketcher.Constraint("Tangent", 21, 1, 19, 2))
sketch11.addConstraint(Sketcher.Constraint("Horizontal", 1))
sketch11.addConstraint(Sketcher.Constraint("Horizontal", 3))
sketch11.addConstraint(Sketcher.Constraint("Horizontal", 5))
sketch11.addConstraint(Sketcher.Constraint("Horizontal", 7))
sketch11.addConstraint(Sketcher.Constraint("Horizontal", 10))
sketch11.addConstraint(Sketcher.Constraint("Horizontal", 12))
sketch11.addConstraint(Sketcher.Constraint("Horizontal", 14))
sketch11.addConstraint(Sketcher.Constraint("Horizontal", 16))
sketch11.addConstraint(Sketcher.Constraint("Horizontal", 18))
sketch11.addConstraint(Sketcher.Constraint("Horizontal", 20))
sketch11.addConstraint(Sketcher.Constraint("Coincident", 2, 3, 0, 3))
sketch11.addConstraint(Sketcher.Constraint("Coincident", 4, 3, 0, 3))
sketch11.addConstraint(Sketcher.Constraint("Coincident", 6, 3, 0, 3))
sketch11.addConstraint(Sketcher.Constraint("Coincident", 8, 3, 0, 3))
sketch11.addConstraint(Sketcher.Constraint("Coincident", 11, 3, 0, 3))
sketch11.addConstraint(Sketcher.Constraint("Coincident", 13, 3, 0, 3))
sketch11.addConstraint(Sketcher.Constraint("Coincident", 15, 3, 0, 3))
sketch11.addConstraint(Sketcher.Constraint("Coincident", 17, 3, 0, 3))
sketch11.addConstraint(Sketcher.Constraint("Coincident", 19, 3, 0, 3))
sketch11.addConstraint(Sketcher.Constraint("Equal", 0, 2))
sketch11.addConstraint(Sketcher.Constraint("Equal", 2, 4))
sketch11.addConstraint(Sketcher.Constraint("Equal", 4, 6))
sketch11.addConstraint(Sketcher.Constraint("Equal", 6, 8))
sketch11.addConstraint(Sketcher.Constraint("Equal", 8, 9))
sketch11.addConstraint(Sketcher.Constraint("Equal", 9, 11))
sketch11.addConstraint(Sketcher.Constraint("Equal", 11, 13))
sketch11.addConstraint(Sketcher.Constraint("Equal", 13, 15))
sketch11.addConstraint(Sketcher.Constraint("Equal", 15, 17))
sketch11.addConstraint(Sketcher.Constraint("Equal", 17, 19))
sketch11.addConstraint(Sketcher.Constraint("Equal", 19, 21))
sketch11.addConstraint(Sketcher.Constraint("Equal", 22, 23))
sketch11.addConstraint(Sketcher.Constraint("Equal", 23, 24))
sketch11.addConstraint(Sketcher.Constraint("Equal", 24, 25))
sketch11.addConstraint(Sketcher.Constraint("Horizontal", 23, 3, 24, 3))
sketch11.addConstraint(Sketcher.Constraint("Horizontal", 22, 3, 25, 3))
sketch11.addConstraint(Sketcher.Constraint("Vertical", 22, 3, 23, 3))
sketch11.addConstraint(Sketcher.Constraint("Vertical", 24, 3, 25, 3))
sketch11.addConstraint(Sketcher.Constraint("Vertical", 21, 3, 8, 1))
sketch11.addConstraint(Sketcher.Constraint("Vertical", 3, 2, 11, 1))
sketch11.addConstraint(Sketcher.Constraint("Vertical", 8, 1, 21, 1))
sketch11.addConstraint(Sketcher.Constraint("Radius", 0, 19.5))
sketch11.addConstraint(Sketcher.Constraint("Diameter", 22, 3.46))
sketch11.addConstraint(Sketcher.Constraint("DistanceX", 22, 3, 6, 3, 16.0))
sketch11.addConstraint(Sketcher.Constraint("DistanceY", 22, 3, 6, 3, 16.0))
sketch11.addConstraint(Sketcher.Constraint("DistanceY", 11, 3, 23, 3, 16.0))
sketch11.addConstraint(Sketcher.Constraint("DistanceX", 13, 3, 24, 3, 16.0))
sketch11.addConstraint(Sketcher.Constraint("DistanceY", 25, 3, 0, 1, 10.0))
sketch11.addConstraint(Sketcher.Constraint("DistanceY", 4, 1, 3, 2, 12.0))
sketch11.addConstraint(Sketcher.Constraint("DistanceY", 6, 1, 1, 2, 3.0))
sketch11.addConstraint(Sketcher.Constraint("DistanceY", 8, 1, 5, 2, 6.0))
sketch11.addConstraint(Sketcher.Constraint("DistanceY", 9, 1, 5, 2, 3.0))
sketch11.addConstraint(Sketcher.Constraint("DistanceY", 14, 2, 15, 1, 3.0))
sketch11.addConstraint(Sketcher.Constraint("DistanceY", 18, 2, 19, 1, 3.0))
sketch11.addConstraint(Sketcher.Constraint("DistanceX", -1, 1, 0, 3, 30.48))
sketch11.addConstraint(Sketcher.Constraint("DistanceY", 0, 3, -1, 1, 111.05))
sketch11.addConstraint(Sketcher.Constraint("DistanceX", 18, 1, 18, 2, 28.04579))
sketch11.addConstraint(Sketcher.Constraint("DistanceX", 14, 1, 14, 2, 37.091673))
pocket9 = doc.addObject("PartDesign::Pocket", "Pocket008")
body.addObject(pocket9)
pocket9.Profile = sketch11
pocket9.Length = 10

sketch12 = doc.addObject("Sketcher::SketchObject", "Sketch011")
body.addObject(sketch12)
sketch12.AttachmentSupport = (doc.YZ_Plane, [""])
sketch12.MapMode = "FlatFace"
sketch12.addGeometry(Part.ArcOfCircle(Part.Circle(Vector(30.4, -70.3, 0), Vector(0, 0, 1), 19.5), math.radians(58), math.radians(122)), False)
sketch12.addGeometry(Part.LineSegment(Vector(20, -53.8, 0), Vector(40.8, -53.8, 0)), False)
sketch12.addGeometry(Part.LineSegment(Vector(44.4, -56.8, 0), Vector(16.3, -56.8, 0)), False)
sketch12.addGeometry(Part.ArcOfCircle(Part.Circle(Vector(30.4, -70.3, 0), Vector(0, 0, 1), 19.5), math.radians(136.19), math.radians(152.51)), False)
sketch12.addGeometry(Part.LineSegment(Vector(13.1, -61.3, 0), Vector(47.7, -61.3, 0)), False)
sketch12.addGeometry(Part.ArcOfCircle(Part.Circle(Vector(30.4, -70.3, 0), Vector(0, 0, 1), 19.5), math.radians(27.49), math.radians(43.81)), False)
sketch12.addGeometry(Part.Circle(Vector(46.4, -54.3, 0), Vector(0, 0, 1), 1.7), False)
sketch12.addGeometry(Part.Circle(Vector(14.4, -54.3, 0), Vector(0, 0, 1), 1.7), False)
sketch12.addGeometry(Part.LineSegment(Vector(48.9, -64.3, 0), Vector(11.8, -64.3, 0)), False)
sketch12.addGeometry(Part.ArcOfCircle(Part.Circle(Vector(30.4, -70.3, 0), Vector(0, 0, 1), 19.5), math.radians(162.08), math.radians(175.59)), False)
sketch12.addGeometry(Part.LineSegment(Vector(10.9, -68.8, 0), Vector(49.8, -68.8, 0)), False)
sketch12.addGeometry(Part.ArcOfCircle(Part.Circle(Vector(30.4, -70.3, 0), Vector(0, 0, 1), 19.5), math.radians(4.41), math.radians(17.92)), False)
sketch12.addGeometry(Part.ArcOfCircle(Part.Circle(Vector(30.4, -70.3, 0), Vector(0, 0, 1), 19.5), math.radians(-18), math.radians(-4.41)), False)
sketch12.addGeometry(Part.LineSegment(Vector(49.8, -71.8, 0), Vector(10.9, -71.8, 0)), False)
sketch12.addGeometry(Part.ArcOfCircle(Part.Circle(Vector(30.4, -70.3, 0), Vector(0, 0, 1), 19.5), math.radians(-175.59), math.radians(-162)), False)
sketch12.addGeometry(Part.LineSegment(Vector(11.8, -76.3, 0), Vector(48.9, -76.3, 0)), False)
sketch12.addGeometry(Part.ArcOfCircle(Part.Circle(Vector(30.4, -70.3, 0), Vector(0, 0, 1), 19.5), math.radians(-44.02), math.radians(-27.57)), False)
sketch12.addGeometry(Part.LineSegment(Vector(47.7, -79.3, 0), Vector(13.1, -79.3, 0)), False)
sketch12.addGeometry(Part.ArcOfCircle(Part.Circle(Vector(30.4, -70.3, 0), Vector(0, 0, 1), 19.5), math.radians(-152.43), math.radians(-135.98)), False)
sketch12.addGeometry(Part.LineSegment(Vector(16.4, -83.8, 0), Vector(44.4, -83.8, 0)), False)
sketch12.addGeometry(Part.ArcOfCircle(Part.Circle(Vector(30.4, -70.3, 0), Vector(0, 0, 1), 19.5), math.radians(-122), math.radians(-58)), False)
sketch12.addGeometry(Part.LineSegment(Vector(40.7, -86.8, 0), Vector(20.1, -86.8, 0)), False)
sketch12.addGeometry(Part.Circle(Vector(46.4, -86.3, 0), Vector(0, 0, 1), 1.7), False)
sketch12.addGeometry(Part.Circle(Vector(14.4, -86.3, 0), Vector(0, 0, 1), 1.7), False)
sketch12.addConstraint(Sketcher.Constraint("Coincident", 0, 1, 1, 2))
sketch12.addConstraint(Sketcher.Constraint("Coincident", 1, 1, 0, 2))
sketch12.addConstraint(Sketcher.Constraint("Coincident", 2, 2, 3, 1))
sketch12.addConstraint(Sketcher.Constraint("Coincident", 3, 2, 4, 1))
sketch12.addConstraint(Sketcher.Constraint("Coincident", 4, 2, 5, 1))
sketch12.addConstraint(Sketcher.Constraint("Coincident", 5, 2, 2, 1))
sketch12.addConstraint(Sketcher.Constraint("Coincident", 8, 2, 9, 1))
sketch12.addConstraint(Sketcher.Constraint("Coincident", 9, 2, 10, 1))
sketch12.addConstraint(Sketcher.Constraint("Coincident", 10, 2, 11, 1))
sketch12.addConstraint(Sketcher.Constraint("Coincident", 11, 2, 8, 1))
sketch12.addConstraint(Sketcher.Constraint("Coincident", 12, 2, 13, 1))
sketch12.addConstraint(Sketcher.Constraint("Coincident", 13, 2, 14, 1))
sketch12.addConstraint(Sketcher.Constraint("Coincident", 14, 2, 15, 1))
sketch12.addConstraint(Sketcher.Constraint("Coincident", 15, 2, 12, 1))
sketch12.addConstraint(Sketcher.Constraint("Coincident", 16, 2, 17, 1))
sketch12.addConstraint(Sketcher.Constraint("Coincident", 17, 2, 18, 1))
sketch12.addConstraint(Sketcher.Constraint("Coincident", 18, 2, 19, 1))
sketch12.addConstraint(Sketcher.Constraint("Coincident", 19, 2, 16, 1))
sketch12.addConstraint(Sketcher.Constraint("Coincident", 20, 1, 21, 2))
sketch12.addConstraint(Sketcher.Constraint("Coincident", 21, 1, 20, 2))
sketch12.addConstraint(Sketcher.Constraint("Horizontal", 1))
sketch12.addConstraint(Sketcher.Constraint("Horizontal", 2))
sketch12.addConstraint(Sketcher.Constraint("Horizontal", 4))
sketch12.addConstraint(Sketcher.Constraint("Horizontal", 8))
sketch12.addConstraint(Sketcher.Constraint("Horizontal", 10))
sketch12.addConstraint(Sketcher.Constraint("Horizontal", 13))
sketch12.addConstraint(Sketcher.Constraint("Horizontal", 15))
sketch12.addConstraint(Sketcher.Constraint("Horizontal", 17))
sketch12.addConstraint(Sketcher.Constraint("Horizontal", 19))
sketch12.addConstraint(Sketcher.Constraint("Horizontal", 21))
sketch12.addConstraint(Sketcher.Constraint("Coincident", 3, 3, 0, 3))
sketch12.addConstraint(Sketcher.Constraint("Coincident", 5, 3, 0, 3))
sketch12.addConstraint(Sketcher.Constraint("Coincident", 9, 3, 0, 3))
sketch12.addConstraint(Sketcher.Constraint("Coincident", 11, 3, 0, 3))
sketch12.addConstraint(Sketcher.Constraint("Coincident", 12, 3, 0, 3))
sketch12.addConstraint(Sketcher.Constraint("Coincident", 14, 3, 0, 3))
sketch12.addConstraint(Sketcher.Constraint("Coincident", 16, 3, 0, 3))
sketch12.addConstraint(Sketcher.Constraint("Coincident", 18, 3, 0, 3))
sketch12.addConstraint(Sketcher.Constraint("Coincident", 20, 3, 0, 3))
sketch12.addConstraint(Sketcher.Constraint("Equal", 0, 3))
sketch12.addConstraint(Sketcher.Constraint("Equal", 3, 5))
sketch12.addConstraint(Sketcher.Constraint("Equal", 6, 7))
sketch12.addConstraint(Sketcher.Constraint("Equal", 5, 9))
sketch12.addConstraint(Sketcher.Constraint("Equal", 9, 11))
sketch12.addConstraint(Sketcher.Constraint("Equal", 11, 12))
sketch12.addConstraint(Sketcher.Constraint("Equal", 12, 14))
sketch12.addConstraint(Sketcher.Constraint("Equal", 14, 16))
sketch12.addConstraint(Sketcher.Constraint("Equal", 16, 18))
sketch12.addConstraint(Sketcher.Constraint("Equal", 18, 20))
sketch12.addConstraint(Sketcher.Constraint("Equal", 7, 22))
sketch12.addConstraint(Sketcher.Constraint("Equal", 22, 23))
sketch12.addConstraint(Sketcher.Constraint("Horizontal", 6, 3, 7, 3))
sketch12.addConstraint(Sketcher.Constraint("Horizontal", 22, 3, 23, 3))
sketch12.addConstraint(Sketcher.Constraint("Vertical", 6, 3, 22, 3))
sketch12.addConstraint(Sketcher.Constraint("Vertical", 7, 3, 23, 3))
sketch12.addConstraint(Sketcher.Constraint("Vertical", 10, 2, 12, 2))
sketch12.addConstraint(Sketcher.Constraint("Radius", 0, 19.5))
sketch12.addConstraint(Sketcher.Constraint("Diameter", 6, 3.46))
sketch12.addConstraint(Sketcher.Constraint("DistanceX", 0, 3, 6, 3, 16.0))
sketch12.addConstraint(Sketcher.Constraint("DistanceY", 0, 3, 6, 3, 16.0))
sketch12.addConstraint(Sketcher.Constraint("DistanceX", 7, 3, 5, 3, 16.0))
sketch12.addConstraint(Sketcher.Constraint("DistanceY", 22, 3, 11, 3, 16.0))
sketch12.addConstraint(Sketcher.Constraint("DistanceY", 2, 2, 1, 1, 3.0))
sketch12.addConstraint(Sketcher.Constraint("DistanceY", 3, 2, 7, 3, 7.0))
sketch12.addConstraint(Sketcher.Constraint("DistanceY", 8, 2, 3, 2, 3.0))
sketch12.addConstraint(Sketcher.Constraint("DistanceY", 9, 2, 2, 2, 12.0))
sketch12.addConstraint(Sketcher.Constraint("DistanceY", 12, 2, 10, 2, 3.0))
sketch12.addConstraint(Sketcher.Constraint("DistanceY", 16, 2, 15, 2, 3.0))
sketch12.addConstraint(Sketcher.Constraint("DistanceY", 20, 1, 18, 2, 3.0))
sketch12.addConstraint(Sketcher.Constraint("DistanceX", 19, 1, 19, 2, 28.04579))
sketch12.addConstraint(Sketcher.Constraint("DistanceX", -1, 1, 1, 1, 19.984899))
sketch12.addConstraint(Sketcher.Constraint("DistanceX", 15, 1, 15, 2, 37.091673))
sketch12.addConstraint(Sketcher.Constraint("DistanceY", 0, 3, -1, 1, 70.280186))
pocket10 = doc.addObject("PartDesign::Pocket", "Pocket009")
body.addObject(pocket10)
pocket10.Profile = sketch12
pocket10.Length = 10
pocket10.Reversed = True

sketch13 = doc.addObject("Sketcher::SketchObject", "Sketch012")
body.addObject(sketch13)
sketch13.AttachmentSupport = (doc.XY_Plane, [""])
sketch13.MapMode = "FlatFace"
sketch13.AttachmentOffset = App.Placement(Vector(0, 0, -146.05), App.Rotation())
sketch13.addGeometry(Part.Circle(Vector(25, 46.4, 0), Vector(0, 0, 1), 1.9), False)
sketch13.addConstraint(Sketcher.Constraint("Diameter", 0, 3.7))
sketch13.addConstraint(Sketcher.Constraint("DistanceY", -1, 1, 0, 3, 46.375))
sketch13.addConstraint(Sketcher.Constraint("DistanceX", -1, 1, 0, 3, 24.982804))
pocket11 = doc.addObject("PartDesign::Pocket", "Pocket010")
body.addObject(pocket11)
pocket11.Profile = sketch13
pocket11.Type = "UpToFirst"
pocket11.Reversed = True

sketch14 = doc.addObject("Sketcher::SketchObject", "Sketch013")
body.addObject(sketch14)
sketch14.AttachmentSupport = (doc.XY_Plane, [""])
sketch14.MapMode = "FlatFace"
sketch14.AttachmentOffset = App.Placement(Vector(0, 0, 6.35), App.Rotation())
sketch14.addGeometry(Part.LineSegment(Vector(40.9, 5.1, 0), Vector(40.9, 20.8, 0)), False)
sketch14.addGeometry(Part.ArcOfCircle(Part.Circle(Vector(37, 20.8, 0), Vector(0, 0, 1), 3.9), math.radians(0), math.radians(180)), False)
sketch14.addGeometry(Part.LineSegment(Vector(33.1, 20.8, 0), Vector(33.1, 5.1, 0)), False)
sketch14.addGeometry(Part.LineSegment(Vector(33.1, 5.1, 0), Vector(40.9, 5.1, 0)), False)
sketch14.addConstraint(Sketcher.Constraint("Tangent", 0, 2, 1, 1))
sketch14.addConstraint(Sketcher.Constraint("Tangent", 1, 2, 2, 1))
sketch14.addConstraint(Sketcher.Constraint("Coincident", 2, 2, 3, 1))
sketch14.addConstraint(Sketcher.Constraint("Coincident", 3, 2, 0, 1))
sketch14.addConstraint(Sketcher.Constraint("Vertical", 0))
sketch14.addConstraint(Sketcher.Constraint("Vertical", 2))
sketch14.addConstraint(Sketcher.Constraint("Horizontal", 3))
sketch14.addConstraint(Sketcher.Constraint("Radius", 1, 3.9))
sketch14.addConstraint(Sketcher.Constraint("DistanceY", 0, 1, 0, 2, 15.699999))
sketch14.addConstraint(Sketcher.Constraint("DistanceY", -1, 1, 1, 3, 20.78))
sketch14.addConstraint(Sketcher.Constraint("DistanceX", -1, 1, 1, 3, 36.996681))
pocket12 = doc.addObject("PartDesign::Pocket", "Pocket011")
body.addObject(pocket12)
pocket12.Profile = sketch14
pocket12.Type = "UpToFirst"

sketch15 = doc.addObject("Sketcher::SketchObject", "Sketch014")
body.addObject(sketch15)
sketch15.AttachmentSupport = (doc.YZ_Plane, [""])
sketch15.MapMode = "FlatFace"
sketch15.AttachmentOffset = App.Placement(Vector(0, 0, 177.8), App.Rotation())
sketch15.addGeometry(Part.Circle(Vector(26.8, -7.7, 0), Vector(0, 0, 1), 1.1), False)
sketch15.addGeometry(Part.Circle(Vector(13.4, -85.9, 0), Vector(0, 0, 1), 1.1), False)
sketch15.addConstraint(Sketcher.Constraint("Equal", 0, 1))
sketch15.addConstraint(Sketcher.Constraint("Diameter", 0, 2.2606))
sketch15.addConstraint(Sketcher.Constraint("DistanceX", 1, 3, 0, 3, 13.4))
sketch15.addConstraint(Sketcher.Constraint("DistanceX", -1, 1, 0, 3, 26.83))
sketch15.addConstraint(Sketcher.Constraint("DistanceY", 0, 3, -1, 1, 7.65))
sketch15.addConstraint(Sketcher.Constraint("DistanceY", 1, 3, -1, 1, 85.860373))
doc.recompute()
hole = doc.addObject("PartDesign::Hole", "Hole")
body.addObject(hole)
hole.Profile = sketch15
hole.ThreadType = "None"
hole.Diameter = 2.2606
hole.DepthType = "Dimension"
hole.Depth = 2.5
hole.DrillPoint = "Flat"

doc.recompute()
